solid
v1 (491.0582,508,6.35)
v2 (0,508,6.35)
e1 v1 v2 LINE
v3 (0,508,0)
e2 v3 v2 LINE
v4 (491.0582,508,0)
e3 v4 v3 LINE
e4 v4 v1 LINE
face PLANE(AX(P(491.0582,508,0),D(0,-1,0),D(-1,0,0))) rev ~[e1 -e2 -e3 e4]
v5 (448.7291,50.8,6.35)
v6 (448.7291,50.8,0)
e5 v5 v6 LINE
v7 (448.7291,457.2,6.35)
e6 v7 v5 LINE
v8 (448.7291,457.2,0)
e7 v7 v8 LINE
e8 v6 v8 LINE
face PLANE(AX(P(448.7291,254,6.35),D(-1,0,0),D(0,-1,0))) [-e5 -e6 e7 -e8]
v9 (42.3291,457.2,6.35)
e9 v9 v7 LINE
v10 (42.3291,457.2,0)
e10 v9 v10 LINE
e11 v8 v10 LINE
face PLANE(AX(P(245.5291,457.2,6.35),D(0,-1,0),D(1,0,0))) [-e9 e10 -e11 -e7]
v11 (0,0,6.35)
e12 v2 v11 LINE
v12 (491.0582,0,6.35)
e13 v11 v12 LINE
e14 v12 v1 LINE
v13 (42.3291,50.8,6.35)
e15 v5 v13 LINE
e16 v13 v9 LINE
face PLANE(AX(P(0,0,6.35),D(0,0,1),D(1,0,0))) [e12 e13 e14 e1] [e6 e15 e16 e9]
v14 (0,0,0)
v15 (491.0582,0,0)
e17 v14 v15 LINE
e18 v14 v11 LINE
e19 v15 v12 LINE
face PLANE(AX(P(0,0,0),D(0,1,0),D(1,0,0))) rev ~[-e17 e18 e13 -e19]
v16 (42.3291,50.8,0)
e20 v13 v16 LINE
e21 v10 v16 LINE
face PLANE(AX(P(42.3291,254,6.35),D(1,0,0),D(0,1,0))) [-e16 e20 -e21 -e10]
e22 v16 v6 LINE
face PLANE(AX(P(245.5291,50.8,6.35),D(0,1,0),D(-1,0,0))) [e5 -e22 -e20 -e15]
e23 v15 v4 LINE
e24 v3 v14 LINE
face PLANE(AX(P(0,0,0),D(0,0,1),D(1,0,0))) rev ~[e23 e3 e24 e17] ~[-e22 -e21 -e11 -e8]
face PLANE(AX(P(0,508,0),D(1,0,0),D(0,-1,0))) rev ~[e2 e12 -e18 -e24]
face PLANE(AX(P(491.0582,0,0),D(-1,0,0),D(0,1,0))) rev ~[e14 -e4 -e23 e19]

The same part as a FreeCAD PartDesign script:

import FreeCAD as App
import Part
import Sketcher
Q = App.Units.Quantity


def add_polygon(sketch, points):
    """Adds a closed chain of lines whose ends are joined by coincident constraints."""
    first, n = sketch.GeometryCount, len(points)
    for a, b in zip(points, points[1:] + points[:1]):
        sketch.addGeometry(Part.LineSegment(App.Vector(*a, 0), App.Vector(*b, 0)), False)
    for i in range(n):
        sketch.addConstraint(Sketcher.Constraint("Coincident", first + i, 2, first + (i + 1) % n, 1))

doc = App.newDocument("Part")
body = doc.addObject("PartDesign::Body", "Body")

# Sketch on XY plane
sketch1 = doc.addObject("Sketcher::SketchObject", "Sketch")
body.addObject(sketch1)
sketch1.AttachmentSupport = (doc.XY_Plane, [""])
sketch1.MapMode = "FlatFace"
add_polygon(sketch1, [(0, 508), (0, 0), (491.0582, 0), (491.0582, 508)])  # lines 0-3
sketch1.addConstraint([
    Sketcher.Constraint("Vertical", 0),
    Sketcher.Constraint("Horizontal", 1),
    Sketcher.Constraint("Vertical", 2),
    Sketcher.Constraint("Horizontal", 3),
    Sketcher.Constraint("Coincident", 0, 2, -1, 1),
    Sketcher.Constraint("DistanceY", 0, 2, 0, 1, Q("20 in")),
    Sketcher.Constraint("DistanceX", 1, 1, 1, 2, Q("19.333 in")),
])
pad1 = doc.addObject("PartDesign::Pad", "Pad")
body.addObject(pad1)
pad1.Profile = sketch1
pad1.Length = Q("0.25 in")

# Sketch on XY plane
sketch2 = doc.addObject("Sketcher::SketchObject", "Sketch001")
body.addObject(sketch2)
sketch2.AttachmentSupport = (doc.XY_Plane, [""])
sketch2.MapMode = "FlatFace"
sketch2.AttachmentOffset = App.Placement(App.Vector(0, 0, 0.25 * 25.4), App.Rotation())
add_polygon(sketch2, [(448.7291, 457.2), (42.3291, 457.2), (42.3291, 50.8), (448.7291, 50.8)])  # lines 0-3
sketch2.addConstraint([
    Sketcher.Constraint("Horizontal", 0),
    Sketcher.Constraint("Vertical", 1),
    Sketcher.Constraint("Horizontal", 2),
    Sketcher.Constraint("Vertical", 3),
    Sketcher.Constraint("Equal", 2, 1),
    Sketcher.Constraint("DistanceX", 0, 2, 0, 1, Q("16 in")),
    Sketcher.Constraint("DistanceY", -1, 1, 0, 2, Q("18 in")),
    Sketcher.Constraint("DistanceX", -1, 1, 0, 2, Q("1.6665 in")),
])
pocket1 = doc.addObject("PartDesign::Pocket", "Pocket")
body.addObject(pocket1)
pocket1.Profile = sketch2
pocket1.Length = Q("0.25 in")

doc.recompute()
